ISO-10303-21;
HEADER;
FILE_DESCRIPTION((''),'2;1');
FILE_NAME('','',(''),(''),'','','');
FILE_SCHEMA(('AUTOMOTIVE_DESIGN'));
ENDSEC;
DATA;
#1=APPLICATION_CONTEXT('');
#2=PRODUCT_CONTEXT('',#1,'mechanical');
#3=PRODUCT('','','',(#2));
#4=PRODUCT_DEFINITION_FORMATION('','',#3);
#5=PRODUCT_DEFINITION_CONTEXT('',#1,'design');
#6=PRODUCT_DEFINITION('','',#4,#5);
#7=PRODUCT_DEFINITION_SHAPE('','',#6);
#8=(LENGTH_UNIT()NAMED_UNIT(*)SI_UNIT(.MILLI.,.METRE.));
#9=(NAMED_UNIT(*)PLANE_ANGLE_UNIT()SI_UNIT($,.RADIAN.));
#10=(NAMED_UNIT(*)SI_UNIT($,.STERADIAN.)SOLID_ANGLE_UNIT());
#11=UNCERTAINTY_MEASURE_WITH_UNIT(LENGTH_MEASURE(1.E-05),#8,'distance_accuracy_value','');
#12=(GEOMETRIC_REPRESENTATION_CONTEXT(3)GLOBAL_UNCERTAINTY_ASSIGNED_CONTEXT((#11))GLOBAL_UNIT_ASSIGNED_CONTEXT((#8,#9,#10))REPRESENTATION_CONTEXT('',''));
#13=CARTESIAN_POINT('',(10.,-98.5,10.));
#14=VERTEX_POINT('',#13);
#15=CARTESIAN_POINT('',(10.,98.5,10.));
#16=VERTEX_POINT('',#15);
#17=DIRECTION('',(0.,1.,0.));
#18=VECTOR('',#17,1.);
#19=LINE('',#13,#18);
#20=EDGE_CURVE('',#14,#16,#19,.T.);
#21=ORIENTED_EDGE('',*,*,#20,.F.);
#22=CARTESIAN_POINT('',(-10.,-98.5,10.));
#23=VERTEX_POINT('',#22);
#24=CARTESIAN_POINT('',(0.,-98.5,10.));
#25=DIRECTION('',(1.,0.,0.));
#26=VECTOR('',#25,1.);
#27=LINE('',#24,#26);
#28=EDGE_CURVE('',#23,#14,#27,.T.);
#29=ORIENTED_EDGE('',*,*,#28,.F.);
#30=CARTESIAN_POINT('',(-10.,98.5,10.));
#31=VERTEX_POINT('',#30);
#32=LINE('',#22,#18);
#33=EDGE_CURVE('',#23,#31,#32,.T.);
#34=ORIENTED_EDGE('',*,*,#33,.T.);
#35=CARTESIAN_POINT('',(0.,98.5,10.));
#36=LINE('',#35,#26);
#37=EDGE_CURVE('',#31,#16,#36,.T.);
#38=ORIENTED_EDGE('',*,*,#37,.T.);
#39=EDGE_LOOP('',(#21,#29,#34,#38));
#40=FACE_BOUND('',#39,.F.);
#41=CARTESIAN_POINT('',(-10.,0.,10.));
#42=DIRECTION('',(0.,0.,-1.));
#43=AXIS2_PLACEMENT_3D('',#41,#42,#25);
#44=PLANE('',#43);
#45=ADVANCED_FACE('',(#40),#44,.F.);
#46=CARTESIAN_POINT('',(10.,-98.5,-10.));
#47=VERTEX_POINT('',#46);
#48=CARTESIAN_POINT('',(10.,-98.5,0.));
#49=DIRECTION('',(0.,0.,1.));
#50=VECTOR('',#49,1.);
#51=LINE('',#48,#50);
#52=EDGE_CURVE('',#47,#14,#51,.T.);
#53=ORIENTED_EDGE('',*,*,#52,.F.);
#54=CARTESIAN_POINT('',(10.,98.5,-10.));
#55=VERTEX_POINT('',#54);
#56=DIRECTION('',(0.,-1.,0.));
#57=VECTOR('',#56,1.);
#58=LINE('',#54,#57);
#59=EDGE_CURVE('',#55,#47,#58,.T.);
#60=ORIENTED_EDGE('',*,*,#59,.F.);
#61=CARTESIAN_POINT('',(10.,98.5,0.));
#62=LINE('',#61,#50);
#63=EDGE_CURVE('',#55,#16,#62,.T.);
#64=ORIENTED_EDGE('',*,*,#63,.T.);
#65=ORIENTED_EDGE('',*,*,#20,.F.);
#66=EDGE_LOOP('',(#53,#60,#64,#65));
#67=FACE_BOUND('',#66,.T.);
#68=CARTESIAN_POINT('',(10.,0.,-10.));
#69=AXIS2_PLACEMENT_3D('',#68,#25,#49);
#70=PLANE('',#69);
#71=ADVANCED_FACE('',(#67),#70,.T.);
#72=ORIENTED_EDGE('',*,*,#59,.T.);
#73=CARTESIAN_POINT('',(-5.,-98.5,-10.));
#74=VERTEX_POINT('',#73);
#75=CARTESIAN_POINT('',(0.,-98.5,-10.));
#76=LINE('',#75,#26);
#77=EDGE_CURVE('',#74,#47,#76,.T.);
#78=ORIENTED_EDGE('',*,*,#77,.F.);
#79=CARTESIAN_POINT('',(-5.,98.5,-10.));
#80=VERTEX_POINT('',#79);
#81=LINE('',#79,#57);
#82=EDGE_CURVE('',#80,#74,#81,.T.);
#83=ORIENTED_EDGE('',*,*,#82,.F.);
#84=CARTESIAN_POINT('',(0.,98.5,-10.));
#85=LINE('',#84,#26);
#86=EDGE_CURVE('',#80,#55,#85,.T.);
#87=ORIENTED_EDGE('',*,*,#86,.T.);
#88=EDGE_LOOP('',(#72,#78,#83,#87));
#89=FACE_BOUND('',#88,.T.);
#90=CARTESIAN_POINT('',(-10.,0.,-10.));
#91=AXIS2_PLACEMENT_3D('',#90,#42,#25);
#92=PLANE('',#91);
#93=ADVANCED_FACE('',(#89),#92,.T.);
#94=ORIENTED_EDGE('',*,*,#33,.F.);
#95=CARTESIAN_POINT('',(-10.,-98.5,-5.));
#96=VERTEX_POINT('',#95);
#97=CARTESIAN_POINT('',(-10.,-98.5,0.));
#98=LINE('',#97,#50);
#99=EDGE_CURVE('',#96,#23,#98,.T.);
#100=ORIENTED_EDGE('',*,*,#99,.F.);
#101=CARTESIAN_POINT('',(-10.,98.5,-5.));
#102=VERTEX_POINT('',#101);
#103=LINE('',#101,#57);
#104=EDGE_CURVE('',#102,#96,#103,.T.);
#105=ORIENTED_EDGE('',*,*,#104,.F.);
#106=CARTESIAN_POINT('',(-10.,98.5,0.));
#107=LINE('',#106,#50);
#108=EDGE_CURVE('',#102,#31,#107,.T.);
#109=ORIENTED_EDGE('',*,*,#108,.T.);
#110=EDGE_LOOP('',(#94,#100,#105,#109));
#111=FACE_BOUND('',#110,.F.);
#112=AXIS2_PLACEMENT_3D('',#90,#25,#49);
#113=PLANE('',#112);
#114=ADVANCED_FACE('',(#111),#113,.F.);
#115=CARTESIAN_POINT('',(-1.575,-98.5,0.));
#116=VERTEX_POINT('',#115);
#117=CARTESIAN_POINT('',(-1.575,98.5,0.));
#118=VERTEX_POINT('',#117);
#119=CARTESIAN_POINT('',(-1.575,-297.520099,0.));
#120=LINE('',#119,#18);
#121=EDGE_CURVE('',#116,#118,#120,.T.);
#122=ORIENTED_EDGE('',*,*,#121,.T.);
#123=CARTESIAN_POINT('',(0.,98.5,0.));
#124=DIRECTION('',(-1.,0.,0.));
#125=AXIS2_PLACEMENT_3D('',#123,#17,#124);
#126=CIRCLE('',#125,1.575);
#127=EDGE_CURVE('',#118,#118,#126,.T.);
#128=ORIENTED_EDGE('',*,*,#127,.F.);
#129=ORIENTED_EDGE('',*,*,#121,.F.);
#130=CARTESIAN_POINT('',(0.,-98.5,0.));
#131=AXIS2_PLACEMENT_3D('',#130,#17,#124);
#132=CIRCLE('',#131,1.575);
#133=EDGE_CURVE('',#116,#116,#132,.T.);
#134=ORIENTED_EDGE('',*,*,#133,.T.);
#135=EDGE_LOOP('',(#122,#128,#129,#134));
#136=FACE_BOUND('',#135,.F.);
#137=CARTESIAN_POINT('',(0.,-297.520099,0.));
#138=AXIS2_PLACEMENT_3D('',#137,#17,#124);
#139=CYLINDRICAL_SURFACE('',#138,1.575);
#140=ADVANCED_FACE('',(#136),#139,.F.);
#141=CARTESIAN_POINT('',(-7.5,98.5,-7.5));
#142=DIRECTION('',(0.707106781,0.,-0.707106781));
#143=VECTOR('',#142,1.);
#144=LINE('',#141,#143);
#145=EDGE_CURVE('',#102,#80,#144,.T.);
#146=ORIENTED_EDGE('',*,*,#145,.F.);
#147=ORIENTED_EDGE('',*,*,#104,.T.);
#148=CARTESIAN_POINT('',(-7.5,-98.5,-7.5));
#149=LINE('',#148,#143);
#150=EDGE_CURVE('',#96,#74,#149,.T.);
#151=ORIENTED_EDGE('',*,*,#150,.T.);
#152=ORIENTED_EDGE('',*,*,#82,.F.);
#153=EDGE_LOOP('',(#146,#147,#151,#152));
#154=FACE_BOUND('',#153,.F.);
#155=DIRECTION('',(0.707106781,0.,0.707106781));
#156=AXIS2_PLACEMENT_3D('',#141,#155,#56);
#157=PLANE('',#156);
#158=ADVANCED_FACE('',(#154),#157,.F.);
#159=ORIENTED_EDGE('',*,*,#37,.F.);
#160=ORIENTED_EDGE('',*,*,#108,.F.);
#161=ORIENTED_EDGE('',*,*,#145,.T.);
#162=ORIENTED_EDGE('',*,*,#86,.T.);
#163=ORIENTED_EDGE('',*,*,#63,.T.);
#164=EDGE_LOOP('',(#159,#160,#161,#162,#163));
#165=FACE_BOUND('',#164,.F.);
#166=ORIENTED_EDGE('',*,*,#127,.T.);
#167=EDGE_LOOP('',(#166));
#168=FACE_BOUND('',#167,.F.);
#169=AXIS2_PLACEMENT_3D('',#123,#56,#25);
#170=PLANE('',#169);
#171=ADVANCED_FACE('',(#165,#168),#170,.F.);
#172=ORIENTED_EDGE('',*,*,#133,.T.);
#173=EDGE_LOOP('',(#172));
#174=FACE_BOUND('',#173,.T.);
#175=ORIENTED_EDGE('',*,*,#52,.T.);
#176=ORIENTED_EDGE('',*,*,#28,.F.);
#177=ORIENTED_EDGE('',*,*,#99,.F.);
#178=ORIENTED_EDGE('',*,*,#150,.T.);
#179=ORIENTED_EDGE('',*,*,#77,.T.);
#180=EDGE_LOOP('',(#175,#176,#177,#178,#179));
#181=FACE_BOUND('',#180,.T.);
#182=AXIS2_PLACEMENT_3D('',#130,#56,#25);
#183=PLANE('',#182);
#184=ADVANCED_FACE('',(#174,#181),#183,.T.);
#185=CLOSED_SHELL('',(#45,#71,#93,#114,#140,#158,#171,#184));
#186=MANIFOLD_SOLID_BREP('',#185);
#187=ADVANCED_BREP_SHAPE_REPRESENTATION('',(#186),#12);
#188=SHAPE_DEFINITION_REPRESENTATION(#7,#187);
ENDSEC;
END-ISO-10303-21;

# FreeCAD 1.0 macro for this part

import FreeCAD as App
import Part
import Sketcher
from FreeCAD import Vector
Q = App.Units.Quantity


def edges_at(feature, points):
    """Names of the edges that pass closest to the given points."""
    edges = feature.Shape.Edges
    near = lambda p: min(range(len(edges)), key=lambda i: edges[i].distToShape(Part.Vertex(*p))[0])
    return sorted({f"Edge{near(p) + 1}" for p in points})


def add_polygon(sketch, points):
    """Adds a closed chain of lines whose ends are joined by coincident constraints."""
    first, n = sketch.GeometryCount, len(points)
    for a, b in zip(points, points[1:] + points[:1]):
        sketch.addGeometry(Part.LineSegment(App.Vector(*a, 0), App.Vector(*b, 0)), False)
    for i in range(n):
        sketch.addConstraint(Sketcher.Constraint("Coincident", first + i, 2, first + (i + 1) % n, 1))

doc = App.newDocument("Part")
body = doc.addObject("PartDesign::Body", "Body")

# Sketch on XZ plane
sketch1 = doc.addObject("Sketcher::SketchObject", "Sketch")
body.addObject(sketch1)
sketch1.AttachmentSupport = (doc.XZ_Plane, [""])
sketch1.MapMode = "FlatFace"
add_polygon(sketch1, [(-10, 10), (-10, -10), (10, -10), (10, 10)])  # lines 0-3
sketch1.addConstraint(Sketcher.Constraint("Vertical", 0))
sketch1.addConstraint(Sketcher.Constraint("Horizontal", 1))
sketch1.addConstraint(Sketcher.Constraint("Vertical", 2))
sketch1.addConstraint(Sketcher.Constraint("Horizontal", 3))
sketch1.addConstraint(Sketcher.Constraint("Symmetric", 0, 2, 2, 2, -1, 1))
sketch1.addConstraint(Sketcher.Constraint("Equal", 3, 0))
sketch1.addConstraint(Sketcher.Constraint("DistanceX", 1, 1, 1, 2, Q("20 mm")))
pad1 = doc.addObject("PartDesign::Pad", "Pad")
body.addObject(pad1)
pad1.Profile = sketch1
pad1.Type = "TwoLengths"
pad1.Length = 98.5
pad1.Length2 = 98.5
doc.recompute()

chamfer = doc.addObject("PartDesign::Chamfer", "Chamfer")
body.addObject(chamfer)
chamfer.Base = (pad1, edges_at(pad1, [(-10, 0, -10)]))
chamfer.Size = 5

# Sketch on XZ plane
sketch2 = doc.addObject("Sketcher::SketchObject", "Sketch001")
body.addObject(sketch2)
sketch2.AttachmentSupport = (doc.XZ_Plane, [""])
sketch2.MapMode = "FlatFace"
sketch2.AttachmentOffset = App.Placement(Vector(0, 0, 98.5), App.Rotation())
sketch2.addGeometry(Part.Circle(Vector(0, 0, 0), Vector(0, 0, 1), 1.575), False)
sketch2.addConstraint(Sketcher.Constraint("Coincident", 0, 3, -1, 1))
sketch2.addConstraint(Sketcher.Constraint("Diameter", 0, Q("3.15 mm")))
doc.recompute()
hole = doc.addObject("PartDesign::Hole", "Hole")
body.addObject(hole)
hole.Profile = sketch2
hole.ThreadType = "None"
hole.Diameter = 3.15
hole.DepthType = "ThroughAll"

doc.recompute()
